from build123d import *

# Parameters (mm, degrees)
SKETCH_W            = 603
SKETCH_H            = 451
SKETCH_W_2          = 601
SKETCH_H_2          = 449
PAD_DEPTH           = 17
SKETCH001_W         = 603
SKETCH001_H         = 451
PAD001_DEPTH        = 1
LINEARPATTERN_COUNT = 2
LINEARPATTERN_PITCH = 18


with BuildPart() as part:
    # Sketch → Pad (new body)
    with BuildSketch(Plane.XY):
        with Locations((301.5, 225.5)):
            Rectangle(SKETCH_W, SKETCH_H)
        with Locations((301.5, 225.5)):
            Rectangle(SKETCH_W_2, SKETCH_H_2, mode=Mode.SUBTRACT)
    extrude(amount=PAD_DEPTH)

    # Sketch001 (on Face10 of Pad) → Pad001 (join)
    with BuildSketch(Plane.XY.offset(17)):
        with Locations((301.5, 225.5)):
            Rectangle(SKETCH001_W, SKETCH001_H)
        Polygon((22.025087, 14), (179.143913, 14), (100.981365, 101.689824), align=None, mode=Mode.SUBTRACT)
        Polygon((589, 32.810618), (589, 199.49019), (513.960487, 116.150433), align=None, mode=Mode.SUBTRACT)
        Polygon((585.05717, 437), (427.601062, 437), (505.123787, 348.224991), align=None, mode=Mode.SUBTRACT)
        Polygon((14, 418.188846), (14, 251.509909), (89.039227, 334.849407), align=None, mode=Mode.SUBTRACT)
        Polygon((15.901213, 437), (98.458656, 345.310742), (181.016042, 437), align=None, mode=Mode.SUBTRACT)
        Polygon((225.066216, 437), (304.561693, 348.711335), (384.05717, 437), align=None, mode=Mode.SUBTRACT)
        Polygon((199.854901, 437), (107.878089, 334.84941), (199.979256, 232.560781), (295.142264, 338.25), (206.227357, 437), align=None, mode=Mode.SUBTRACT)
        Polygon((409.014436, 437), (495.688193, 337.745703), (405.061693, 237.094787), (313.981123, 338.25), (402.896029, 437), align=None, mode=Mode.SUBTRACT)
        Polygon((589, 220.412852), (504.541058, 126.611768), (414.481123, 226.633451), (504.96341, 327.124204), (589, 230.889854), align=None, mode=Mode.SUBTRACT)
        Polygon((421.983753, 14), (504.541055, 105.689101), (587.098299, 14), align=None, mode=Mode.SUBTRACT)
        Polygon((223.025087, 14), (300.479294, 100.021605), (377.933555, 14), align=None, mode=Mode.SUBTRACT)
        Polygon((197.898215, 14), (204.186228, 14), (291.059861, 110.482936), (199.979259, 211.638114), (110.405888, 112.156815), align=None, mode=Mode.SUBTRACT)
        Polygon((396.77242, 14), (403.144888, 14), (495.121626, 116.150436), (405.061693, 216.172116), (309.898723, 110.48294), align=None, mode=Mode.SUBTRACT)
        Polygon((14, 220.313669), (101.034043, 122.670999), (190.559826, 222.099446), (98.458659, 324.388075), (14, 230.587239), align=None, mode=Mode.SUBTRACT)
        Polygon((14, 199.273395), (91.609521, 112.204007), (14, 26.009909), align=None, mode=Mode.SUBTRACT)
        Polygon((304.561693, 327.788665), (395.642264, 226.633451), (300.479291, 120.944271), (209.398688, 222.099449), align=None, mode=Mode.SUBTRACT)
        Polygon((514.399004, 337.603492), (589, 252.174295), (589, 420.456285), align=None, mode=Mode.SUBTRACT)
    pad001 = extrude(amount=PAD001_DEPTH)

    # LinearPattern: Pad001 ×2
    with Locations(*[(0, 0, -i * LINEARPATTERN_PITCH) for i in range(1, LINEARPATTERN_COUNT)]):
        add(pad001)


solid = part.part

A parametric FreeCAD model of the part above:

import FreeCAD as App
import Part
import Sketcher

V = App.Vector
Q = App.Units.Quantity


def add_polygon(sketch, points):
    """Adds a closed chain of lines whose ends are joined by coincident constraints."""
    first, n = sketch.GeometryCount, len(points)
    for a, b in zip(points, points[1:] + points[:1]):
        sketch.addGeometry(Part.LineSegment(App.Vector(*a, 0), App.Vector(*b, 0)), False)
    for i in range(n):
        sketch.addConstraint(Sketcher.Constraint("Coincident", first + i, 2, first + (i + 1) % n, 1))

doc = App.newDocument("Part")
body = doc.addObject("PartDesign::Body", "Body")

sketch1 = body.newObject("Sketcher::SketchObject", "Sketch")
sketch1.AttachmentSupport = (doc.getObject("XY_Plane"), [""])
sketch1.MapMode = "FlatFace"
add_polygon(sketch1, [(0, 451), (0, 0), (603, 0), (603, 451)])
add_polygon(sketch1, [(602, 1), (1, 1), (1, 450), (602, 450)])
sketch1.addConstraint([
    Sketcher.Constraint("Vertical", 0),
    Sketcher.Constraint("Horizontal", 1),
    Sketcher.Constraint("Vertical", 2),
    Sketcher.Constraint("Horizontal", 3),
    Sketcher.Constraint("Horizontal", 4),
    Sketcher.Constraint("Vertical", 5),
    Sketcher.Constraint("Horizontal", 6),
    Sketcher.Constraint("Vertical", 7),
    Sketcher.Constraint("Coincident", 0, 2, -1, 1),
    Sketcher.Constraint("DistanceX", 1, 1, 1, 2, Q("603 mm")),
    Sketcher.Constraint("DistanceX", 4, 2, 4, 1, Q("601 mm")),
    Sketcher.Constraint("DistanceY", 0, 2, 0, 1, Q("451 mm")),
    Sketcher.Constraint("DistanceY", 5, 1, 5, 2, Q("449 mm")),
    Sketcher.Constraint("DistanceX", -1, 1, 4, 2, Q("1 mm")),
    Sketcher.Constraint("DistanceY", -1, 1, 4, 2, Q("1 mm")),
])
pad1 = body.newObject("PartDesign::Pad", "Pad")
pad1.Profile = sketch1
pad1.Length = 17

sketch2 = body.newObject("Sketcher::SketchObject", "Sketch001")
sketch2.AttachmentSupport = (doc.getObject("XY_Plane"), [""])
sketch2.MapMode = "FlatFace"
sketch2.AttachmentOffset = App.Placement(V(0, 0, 17), App.Rotation())
add_polygon(sketch2, [(0, 451), (0, 0), (603, 0), (603, 451)])
add_polygon(sketch2, [(179.143913, 14), (22.025087, 14), (100.981365, 101.689824)])
add_polygon(sketch2, [(14, 26.009909), (14, 199.273395), (91.609521, 112.204007)])
add_polygon(sketch2, [(377.933555, 14), (223.025087, 14), (300.479294, 100.021605)])
add_polygon(sketch2, [(204.186228, 14), (197.898215, 14), (110.405888, 112.156815), (199.979259, 211.638114), (291.059861, 110.482936)])
add_polygon(sketch2, [(101.034043, 122.670999), (14, 220.313669), (14, 230.587239), (98.458659, 324.388075), (190.559826, 222.099446)])
add_polygon(sketch2, [(403.144888, 14), (396.77242, 14), (309.898723, 110.48294), (405.061693, 216.172116), (495.121626, 116.150436)])
add_polygon(sketch2, [(587.098299, 14), (421.983753, 14), (504.541055, 105.689101)])
add_polygon(sketch2, [(589, 199.49019), (589, 32.810618), (513.960487, 116.150433)])
add_polygon(sketch2, [(209.398688, 222.099449), (304.561693, 327.788665), (395.642264, 226.633451), (300.479291, 120.944271)])
add_polygon(sketch2, [(14, 251.509909), (14, 418.188846), (89.039227, 334.849407)])
add_polygon(sketch2, [(98.458656, 345.310742), (15.901213, 437), (181.016042, 437)])
add_polygon(sketch2, [(107.878089, 334.84941), (199.854901, 437), (206.227357, 437), (295.142264, 338.25), (199.979256, 232.560781)])
add_polygon(sketch2, [(589, 230.889854), (589, 220.412852), (504.541058, 126.611768), (414.481123, 226.633451), (504.96341, 327.124204)])
add_polygon(sketch2, [(402.896029, 437), (409.014436, 437), (495.688193, 337.745703), (405.061693, 237.094787), (313.981123, 338.25)])
add_polygon(sketch2, [(304.561693, 348.711335), (225.066216, 437), (384.05717, 437)])
add_polygon(sketch2, [(589, 252.174295), (514.399004, 337.603492), (589, 420.456285)])
add_polygon(sketch2, [(427.601062, 437), (585.05717, 437), (505.123787, 348.224991)])
sketch2.addConstraint([
    Sketcher.Constraint("Vertical", 0),
    Sketcher.Constraint("Horizontal", 1),
    Sketcher.Constraint("Vertical", 2),
    Sketcher.Constraint("Horizontal", 3),
    Sketcher.Constraint("Horizontal", 4),
    Sketcher.Constraint("Vertical", 7),
    Sketcher.Constraint("Horizontal", 10),
    Sketcher.Constraint("Horizontal", 13),
    Sketcher.Constraint("Vertical", 19),
    Sketcher.Constraint("Horizontal", 23),
    Sketcher.Constraint("Horizontal", 28),
    Sketcher.Constraint("Vertical", 31),
    Sketcher.Constraint("Vertical", 38),
    Sketcher.Constraint("Horizontal", 42),
    Sketcher.Constraint("Horizontal", 45),
    Sketcher.Constraint("Vertical", 49),
    Sketcher.Constraint("Horizontal", 54),
    Sketcher.Constraint("Horizontal", 60),
    Sketcher.Constraint("Vertical", 64),
    Sketcher.Constraint("Horizontal", 65),
    Sketcher.Constraint("Coincident", 0, 2, -1, 1),
    Sketcher.Constraint("DistanceX", 1, 1, 1, 2, Q("603 mm")),
    Sketcher.Constraint("DistanceY", 0, 2, 0, 1, Q("451 mm")),
    Sketcher.Constraint("DistanceY", -1, 1, 4, 2, Q("14 mm")),
    Sketcher.Constraint("DistanceX", -1, 1, 7, 2, Q("14 mm")),
    Sketcher.Constraint("DistanceY", -1, 1, 10, 2, Q("14 mm")),
    Sketcher.Constraint("DistanceY", -1, 1, 13, 2, Q("14 mm")),
    Sketcher.Constraint("DistanceX", -1, 1, 18, 2, Q("14 mm")),
    Sketcher.Constraint("DistanceY", -1, 1, 23, 2, Q("14 mm")),
    Sketcher.Constraint("DistanceY", -1, 1, 28, 2, Q("14 mm")),
    Sketcher.Constraint("DistanceX", -1, 1, 31, 2, Q("589 mm")),
    Sketcher.Constraint("DistanceX", -1, 1, 38, 2, Q("14 mm")),
    Sketcher.Constraint("DistanceY", -1, 1, 41, 2, Q("437 mm")),
    Sketcher.Constraint("DistanceY", -1, 1, 44, 2, Q("437 mm")),
    Sketcher.Constraint("DistanceX", -1, 1, 49, 2, Q("589 mm")),
    Sketcher.Constraint("DistanceY", -1, 1, 54, 2, Q("437 mm")),
    Sketcher.Constraint("DistanceY", -1, 1, 59, 2, Q("437 mm")),
    Sketcher.Constraint("DistanceX", -1, 1, 63, 2, Q("589 mm")),
    Sketcher.Constraint("DistanceY", -1, 1, 65, 2, Q("437 mm")),
    Sketcher.Constraint("DistanceY", -1, 1, 46, 2, Q("338.25 mm")),
    Sketcher.Constraint("DistanceY", -1, 1, 57, 2, Q("338.25 mm")),
    Sketcher.Constraint("DistanceY", -1, 1, 22, 2, Q("122.670999 mm")),
    Sketcher.Constraint("Distance", 5, Q("117.998301 mm")),
    Sketcher.Constraint("Distance", 17, Q("129.830601 mm")),
    Sketcher.Constraint("Distance", 29, Q("123.379899 mm")),
    Sketcher.Constraint("DistanceX", 10, 2, 10, 1, Q("154.908468 mm")),
    Sketcher.Constraint("DistanceX", 42, 1, 42, 2, Q("165.114829 mm")),
    Sketcher.Constraint("DistanceX", 65, 1, 65, 2, Q("157.456108 mm")),
    Sketcher.Constraint("DistanceY", 19, 1, 19, 2, Q("10.27357 mm")),
    Sketcher.Constraint("DistanceY", 31, 2, 31, 1, Q("166.679572 mm")),
    Sketcher.Constraint("DistanceY", 64, 2, 64, 1, Q("168.28199 mm")),
    Sketcher.Constraint("DistanceY", -1, 1, 29, 2, Q("105.689101 mm")),
    Sketcher.Constraint("DistanceX", -1, 1, 30, 2, Q("587.098299 mm")),
    Sketcher.Constraint("DistanceX", -1, 1, 44, 2, Q("199.854901 mm")),
    Sketcher.Constraint("Distance", 8, Q("116.637541 mm")),
    Sketcher.Constraint("Distance", 11, Q("115.753491 mm")),
    Sketcher.Constraint("Distance", 14, Q("131.490181 mm")),
    Sketcher.Constraint("Distance", 20, Q("126.22148 mm")),
    Sketcher.Constraint("Distance", 25, Q("142.21882 mm")),
    Sketcher.Constraint("Distance", 26, Q("134.592452 mm")),
    Sketcher.Constraint("Distance", 27, Q("137.457018 mm")),
    Sketcher.Constraint("Distance", 30, Q("123.37986 mm")),
    Sketcher.Constraint("Distance", 35, Q("136.117772 mm")),
    Sketcher.Constraint("Distance", 40, Q("112.14436 mm")),
    Sketcher.Constraint("Distance", 41, Q("123.38011 mm")),
    Sketcher.Constraint("Distance", 43, Q("123.380071 mm")),
    Sketcher.Constraint("Distance", 52, Q("135.223651 mm")),
    Sketcher.Constraint("Distance", 57, Q("136.11777 mm")),
    Sketcher.Constraint("Distance", 59, Q("118.804121 mm")),
    Sketcher.Constraint("Distance", 61, Q("118.804121 mm")),
    Sketcher.Constraint("Distance", 62, Q("113.417178 mm")),
    Sketcher.Constraint("Distance", 66, Q("119.458562 mm")),
    Sketcher.Constraint("DistanceX", 4, 2, 4, 1, Q("157.118826 mm")),
    Sketcher.Constraint("DistanceX", 13, 2, 13, 1, Q("6.288013 mm")),
    Sketcher.Constraint("DistanceX", 23, 2, 23, 1, Q("6.372468 mm")),
    Sketcher.Constraint("DistanceX", 45, 1, 45, 2, Q("6.372456 mm")),
    Sketcher.Constraint("DistanceX", 54, 1, 54, 2, Q("6.118407 mm")),
    Sketcher.Constraint("DistanceX", 60, 1, 60, 2, Q("158.990954 mm")),
    Sketcher.Constraint("DistanceY", 7, 1, 7, 2, Q("173.263486 mm")),
    Sketcher.Constraint("DistanceY", 38, 1, 38, 2, Q("166.678937 mm")),
    Sketcher.Constraint("DistanceY", 49, 2, 49, 1, Q("10.477002 mm")),
    Sketcher.Constraint("DistanceX", -1, 1, 8, 2, Q("91.609521 mm")),
    Sketcher.Constraint("DistanceY", -1, 1, 9, 2, Q("26.009909 mm")),
    Sketcher.Constraint("DistanceX", -1, 1, 14, 2, Q("110.405888 mm")),
    Sketcher.Constraint("DistanceX", -1, 1, 15, 2, Q("199.979259 mm")),
    Sketcher.Constraint("DistanceX", -1, 1, 16, 2, Q("291.059861 mm")),
    Sketcher.Constraint("DistanceX", -1, 1, 17, 2, Q("204.186228 mm")),
    Sketcher.Constraint("DistanceY", -1, 1, 18, 2, Q("220.313669 mm")),
    Sketcher.Constraint("DistanceX", -1, 1, 20, 2, Q("98.458659 mm")),
    Sketcher.Constraint("DistanceX", -1, 1, 23, 2, Q("396.77242 mm")),
    Sketcher.Constraint("DistanceY", -1, 1, 24, 2, Q("110.48294 mm")),
    Sketcher.Constraint("DistanceY", -1, 1, 33, 2, Q("199.49019 mm")),
    Sketcher.Constraint("DistanceY", -1, 1, 35, 2, Q("226.633451 mm")),
    Sketcher.Constraint("DistanceX", -1, 1, 36, 2, Q("300.479291 mm")),
    Sketcher.Constraint("DistanceY", -1, 1, 36, 2, Q("120.944271 mm")),
    Sketcher.Constraint("DistanceX", -1, 1, 37, 2, Q("209.398688 mm")),
    Sketcher.Constraint("DistanceY", -1, 1, 37, 2, Q("222.099449 mm")),
    Sketcher.Constraint("DistanceY", -1, 1, 40, 2, Q("251.509909 mm")),
    Sketcher.Constraint("DistanceX", -1, 1, 42, 2, Q("181.016042 mm")),
    Sketcher.Constraint("DistanceY", -1, 1, 47, 2, Q("232.560781 mm")),
    Sketcher.Constraint("DistanceX", -1, 1, 48, 2, Q("107.878089 mm")),
    Sketcher.Constraint("DistanceY", -1, 1, 48, 2, Q("334.84941 mm")),
    Sketcher.Constraint("DistanceY", -1, 1, 49, 2, Q("220.412852 mm")),
    Sketcher.Constraint("DistanceX", -1, 1, 50, 2, Q("504.541058 mm")),
    Sketcher.Constraint("DistanceY", -1, 1, 51, 2, Q("226.633451 mm")),
    Sketcher.Constraint("DistanceX", -1, 1, 52, 2, Q("504.96341 mm")),
    Sketcher.Constraint("DistanceX", -1, 1, 58, 2, Q("402.896029 mm")),
    Sketcher.Constraint("DistanceX", -1, 1, 60, 2, Q("384.05717 mm")),
    Sketcher.Constraint("DistanceY", -1, 1, 62, 2, Q("337.603492 mm")),
    Sketcher.Constraint("DistanceX", -1, 1, 65, 2, Q("585.05717 mm")),
    Sketcher.Constraint("DistanceY", -1, 1, 66, 2, Q("348.224991 mm")),
    Sketcher.Constraint("Distance", 6, Q("117.468673 mm")),
    Sketcher.Constraint("Distance", 12, Q("115.753527 mm")),
    Sketcher.Constraint("Distance", 15, Q("133.865297 mm")),
    Sketcher.Constraint("Distance", 18, Q("130.801436 mm")),
    Sketcher.Constraint("Distance", 21, Q("137.642975 mm")),
    Sketcher.Constraint("Distance", 22, Q("133.794177 mm")),
    Sketcher.Constraint("Distance", 24, Q("129.830647 mm")),
    Sketcher.Constraint("Distance", 32, Q("112.144787 mm")),
    Sketcher.Constraint("Distance", 33, Q("112.144744 mm")),
    Sketcher.Constraint("Distance", 34, Q("142.218873 mm")),
    Sketcher.Constraint("Distance", 36, Q("142.218825 mm")),
    Sketcher.Constraint("Distance", 39, Q("112.144316 mm")),
    Sketcher.Constraint("Distance", 46, Q("132.881237 mm")),
    Sketcher.Constraint("Distance", 47, Q("142.218877 mm")),
    Sketcher.Constraint("Distance", 50, Q("126.221853 mm")),
    Sketcher.Constraint("Distance", 51, Q("134.592455 mm")),
    Sketcher.Constraint("Distance", 55, Q("131.771604 mm")),
    Sketcher.Constraint("Distance", 56, Q("135.439172 mm")),
    Sketcher.Constraint("Distance", 58, Q("132.881236 mm")),
    Sketcher.Constraint("Distance", 63, Q("111.489434 mm")),
    Sketcher.Constraint("DistanceX", -1, 1, 4, 2, Q("22.025087 mm")),
    Sketcher.Constraint("DistanceX", -1, 1, 10, 2, Q("223.025087 mm")),
    Sketcher.Constraint("DistanceX", -1, 1, 25, 2, Q("405.061693 mm")),
    Sketcher.Constraint("DistanceX", -1, 1, 55, 2, Q("495.688193 mm")),
])
pad2 = body.newObject("PartDesign::Pad", "Pad001")
pad2.Profile = sketch2
pad2.Length = 1
doc.recompute()

linearpattern = body.newObject("PartDesign::LinearPattern", "LinearPattern")
linearpattern.Originals = [pad2]
linearpattern.Direction = (doc.getObject("Z_Axis"), [""])
linearpattern.Mode = "offset"
linearpattern.Offset = 18
linearpattern.Occurrences = 2
linearpattern.Reversed = True
body.Tip = linearpattern

doc.recompute()
